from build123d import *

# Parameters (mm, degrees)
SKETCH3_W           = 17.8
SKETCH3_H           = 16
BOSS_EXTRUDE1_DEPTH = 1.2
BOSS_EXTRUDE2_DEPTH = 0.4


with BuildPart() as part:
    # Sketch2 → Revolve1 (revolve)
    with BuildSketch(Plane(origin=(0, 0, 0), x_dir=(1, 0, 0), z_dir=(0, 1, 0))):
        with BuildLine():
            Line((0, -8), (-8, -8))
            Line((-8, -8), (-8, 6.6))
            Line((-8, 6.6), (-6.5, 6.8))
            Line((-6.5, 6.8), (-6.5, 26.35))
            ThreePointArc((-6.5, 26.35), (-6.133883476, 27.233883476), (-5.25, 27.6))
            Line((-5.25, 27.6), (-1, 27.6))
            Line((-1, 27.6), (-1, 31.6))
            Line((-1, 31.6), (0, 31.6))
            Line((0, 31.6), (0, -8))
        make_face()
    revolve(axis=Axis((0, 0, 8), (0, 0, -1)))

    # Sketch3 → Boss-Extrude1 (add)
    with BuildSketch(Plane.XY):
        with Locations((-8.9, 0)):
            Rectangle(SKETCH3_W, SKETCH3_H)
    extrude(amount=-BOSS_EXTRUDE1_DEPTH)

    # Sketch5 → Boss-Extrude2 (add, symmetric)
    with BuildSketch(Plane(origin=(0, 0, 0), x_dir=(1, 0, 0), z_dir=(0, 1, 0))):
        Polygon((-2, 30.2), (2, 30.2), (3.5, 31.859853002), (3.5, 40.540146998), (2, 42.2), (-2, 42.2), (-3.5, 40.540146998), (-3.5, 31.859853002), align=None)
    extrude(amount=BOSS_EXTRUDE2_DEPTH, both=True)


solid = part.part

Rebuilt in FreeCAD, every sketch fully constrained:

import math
import FreeCAD as App
import Part
import Sketcher
from FreeCAD import Vector
Q = App.Units.Quantity

doc = App.newDocument("Part")
params = doc.addObject("Spreadsheet::Sheet", "Params")
for row, (alias, value) in enumerate([
    ("sketch1_width", "8 mm"),
    ("sketch1_width2", "1 mm"),
    ("sketch1_height", "4 mm"),
    ("sketch1_radius", "1.25 mm"),
    ("sketch1_height2", "39.6 mm"),
    ("revolution_angle", "360 deg"),
    ("sketch2_height", "16 mm"),
    ("sketch2_width", "17.8 mm"),
    ("pad1_length", "1.2 mm"),
    ("sketch3_width", "4 mm"),
    ("pad2_length", "0.8 mm"),
], start=1):
    params.set(f"A{row}", alias)
    params.set(f"B{row}", "=" + value)
    params.setAlias(f"B{row}", alias)

body = doc.addObject("PartDesign::Body", "Body")

sketch1 = body.newObject("Sketcher::SketchObject", "Sketch")
sketch1.AttachmentSupport = (doc.getObject("XZ_Plane"), [""])
sketch1.MapMode = "FlatFace"
sketch1.addGeometry([
    Part.LineSegment(Vector(-8, 8, 0), Vector(0, 8, 0)),
    Part.LineSegment(Vector(0, 8, 0), Vector(0, -31.6, 0)),
    Part.LineSegment(Vector(0, -31.6, 0), Vector(-1, -31.6, 0)),
    Part.LineSegment(Vector(-1, -31.6, 0), Vector(-1, -27.6, 0)),
    Part.LineSegment(Vector(-1, -27.6, 0), Vector(-5.25, -27.6, 0)),
    Part.ArcOfCircle(Part.Circle(Vector(-5.25, -26.35, 0), Vector(0, 0, 1), 1.25), math.radians(-180), math.radians(-90)),
    Part.LineSegment(Vector(-6.5, -26.35, 0), Vector(-6.5, -6.8, 0)),
    Part.LineSegment(Vector(-6.5, -6.8, 0), Vector(-8, -6.6, 0)),
    Part.LineSegment(Vector(-8, -6.6, 0), Vector(-8, 8, 0)),
], False)
sketch1.addConstraint([
    Sketcher.Constraint("Coincident", 0, 2, 1, 1),
    Sketcher.Constraint("Coincident", 1, 2, 2, 1),
    Sketcher.Constraint("Coincident", 2, 2, 3, 1),
    Sketcher.Constraint("Coincident", 3, 2, 4, 1),
    Sketcher.Constraint("Tangent", 4, 2, 5, 2),
    Sketcher.Constraint("Tangent", 5, 1, 6, 1),
    Sketcher.Constraint("Coincident", 6, 2, 7, 1),
    Sketcher.Constraint("Coincident", 7, 2, 8, 1),
    Sketcher.Constraint("Coincident", 8, 2, 0, 1),
    Sketcher.Constraint("Horizontal", 0),
    Sketcher.Constraint("Vertical", 1),
    Sketcher.Constraint("Horizontal", 2),
    Sketcher.Constraint("Vertical", 3),
    Sketcher.Constraint("Horizontal", 4),
    Sketcher.Constraint("Vertical", 6),
    Sketcher.Constraint("Vertical", 8),
    Sketcher.Constraint("PointOnObject", 0, 2, -2),
    Sketcher.Constraint("DistanceX", 0, 1, 0, 2, Q("8 mm")),
    Sketcher.Constraint("DistanceX", 2, 2, 2, 1, Q("1 mm")),
    Sketcher.Constraint("DistanceY", 3, 1, 3, 2, Q("4 mm")),
    Sketcher.Constraint("Radius", 5, Q("1.25 mm")),
    Sketcher.Constraint("DistanceY", 1, 2, 1, 1, Q("39.6 mm")),
    Sketcher.Constraint("DistanceY", 8, 1, 8, 2, Q("14.6 mm")),
    Sketcher.Constraint("DistanceY", -1, 1, 0, 2, Q("8 mm")),
    Sketcher.Constraint("DistanceX", 4, 2, 4, 1, Q("4.25 mm")),
    Sketcher.Constraint("DistanceY", 6, 1, 6, 2, Q("19.55 mm")),
])
sketch1.setExpression("Constraints[17]", "Params.sketch1_width")
sketch1.setExpression("Constraints[18]", "Params.sketch1_width2")
sketch1.setExpression("Constraints[19]", "Params.sketch1_height")
sketch1.setExpression("Constraints[20]", "Params.sketch1_radius")
sketch1.setExpression("Constraints[21]", "Params.sketch1_height2")
revolution = body.newObject("PartDesign::Revolution", "Revolution")
revolution.Profile = sketch1
revolution.ReferenceAxis = (sketch1, ["V_Axis"])
revolution.setExpression("Angle", "Params.revolution_angle")

sketch2 = body.newObject("Sketcher::SketchObject", "Sketch001")
sketch2.AttachmentSupport = (doc.getObject("XY_Plane"), [""])
sketch2.MapMode = "FlatFace"
sketch2.addGeometry([
    Part.LineSegment(Vector(-17.8, 8, 0), Vector(-17.8, -8, 0)),
    Part.LineSegment(Vector(-17.8, -8, 0), Vector(0, -8, 0)),
    Part.LineSegment(Vector(0, -8, 0), Vector(0, 8, 0)),
    Part.LineSegment(Vector(0, 8, 0), Vector(-17.8, 8, 0)),
], False)
sketch2.addConstraint([
    Sketcher.Constraint("Coincident", 0, 2, 1, 1),
    Sketcher.Constraint("Coincident", 1, 2, 2, 1),
    Sketcher.Constraint("Coincident", 2, 2, 3, 1),
    Sketcher.Constraint("Coincident", 3, 2, 0, 1),
    Sketcher.Constraint("Vertical", 0),
    Sketcher.Constraint("Horizontal", 1),
    Sketcher.Constraint("Vertical", 2),
    Sketcher.Constraint("Horizontal", 3),
    Sketcher.Constraint("Symmetric", 1, 2, 2, 2, -1, 1),
    Sketcher.Constraint("DistanceY", 0, 2, 0, 1, Q("16 mm")),
    Sketcher.Constraint("DistanceX", 1, 1, 1, 2, Q("17.8 mm")),
])
sketch2.setExpression("Constraints[9]", "Params.sketch2_height")
sketch2.setExpression("Constraints[10]", "Params.sketch2_width")
pad1 = body.newObject("PartDesign::Pad", "Pad")
pad1.Profile = sketch2
pad1.setExpression("Length", "Params.pad1_length")
pad1.Reversed = True

sketch3 = body.newObject("Sketcher::SketchObject", "Sketch002")
sketch3.AttachmentSupport = (doc.getObject("XZ_Plane"), [""])
sketch3.MapMode = "FlatFace"
sketch3.addGeometry([
    Part.LineSegment(Vector(-2, -30.2, 0), Vector(2, -30.2, 0)),
    Part.LineSegment(Vector(2, -30.2, 0), Vector(3.5, -31.859853, 0)),
    Part.LineSegment(Vector(3.5, -31.859853, 0), Vector(3.5, -40.540147, 0)),
    Part.LineSegment(Vector(3.5, -40.540147, 0), Vector(2, -42.2, 0)),
    Part.LineSegment(Vector(2, -42.2, 0), Vector(-2, -42.2, 0)),
    Part.LineSegment(Vector(-2, -42.2, 0), Vector(-3.5, -40.540147, 0)),
    Part.LineSegment(Vector(-3.5, -40.540147, 0), Vector(-3.5, -31.859853, 0)),
    Part.LineSegment(Vector(-3.5, -31.859853, 0), Vector(-2, -30.2, 0)),
], False)
sketch3.addConstraint([
    Sketcher.Constraint("Coincident", 0, 2, 1, 1),
    Sketcher.Constraint("Coincident", 1, 2, 2, 1),
    Sketcher.Constraint("Coincident", 2, 2, 3, 1),
    Sketcher.Constraint("Coincident", 3, 2, 4, 1),
    Sketcher.Constraint("Coincident", 4, 2, 5, 1),
    Sketcher.Constraint("Coincident", 5, 2, 6, 1),
    Sketcher.Constraint("Coincident", 6, 2, 7, 1),
    Sketcher.Constraint("Coincident", 7, 2, 0, 1),
    Sketcher.Constraint("Horizontal", 0),
    Sketcher.Constraint("Vertical", 2),
    Sketcher.Constraint("Horizontal", 4),
    Sketcher.Constraint("Vertical", 6),
    Sketcher.Constraint("Symmetric", 2, 2, 5, 2, -2),
    Sketcher.Constraint("Parallel", 1, 5),
    Sketcher.Constraint("Parallel", 3, 7),
    Sketcher.Constraint("Horizontal", 1, 2, 6, 2),
    Sketcher.Constraint("Vertical", 0, 2, 3, 2),
    Sketcher.Constraint("Vertical", 4, 2, 7, 2),
    Sketcher.Constraint("DistanceX", 0, 1, 0, 2, Q("4 mm")),
    Sketcher.Constraint("DistanceY", 3, 2, 0, 2, Q("12 mm")),
    Sketcher.Constraint("DistanceX", 5, 2, 2, 2, Q("7 mm")),
    Sketcher.Constraint("DistanceY", 0, 2, -1, 1, Q("30.2 mm")),
    Sketcher.Constraint("Distance", 1, Q("2.237211 mm")),
])
sketch3.setExpression("Constraints[18]", "Params.sketch3_width")
pad2 = body.newObject("PartDesign::Pad", "Pad001")
pad2.Profile = sketch3
pad2.setExpression("Length", "Params.pad2_length")
pad2.Midplane = True

doc.recompute()
